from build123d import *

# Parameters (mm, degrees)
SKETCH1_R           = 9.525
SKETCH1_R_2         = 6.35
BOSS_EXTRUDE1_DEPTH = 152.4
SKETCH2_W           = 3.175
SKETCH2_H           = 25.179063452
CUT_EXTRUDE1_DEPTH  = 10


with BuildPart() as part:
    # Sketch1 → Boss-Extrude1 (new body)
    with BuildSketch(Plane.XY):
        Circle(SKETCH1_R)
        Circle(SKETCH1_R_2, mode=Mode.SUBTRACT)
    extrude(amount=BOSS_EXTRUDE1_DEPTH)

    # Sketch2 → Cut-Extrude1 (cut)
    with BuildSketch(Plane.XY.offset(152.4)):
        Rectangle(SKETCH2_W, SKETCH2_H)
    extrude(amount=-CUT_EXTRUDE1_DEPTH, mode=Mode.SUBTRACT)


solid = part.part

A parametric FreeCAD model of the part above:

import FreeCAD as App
import Part
import Sketcher
from FreeCAD import Vector
Q = App.Units.Quantity

doc = App.newDocument("Part")
body = doc.addObject("PartDesign::Body", "Body")

sketch1 = body.newObject("Sketcher::SketchObject", "Sketch")
sketch1.AttachmentSupport = (doc.getObject("XY_Plane"), [""])
sketch1.MapMode = "FlatFace"
sketch1.addGeometry(Part.Circle(Vector(0, 0, 0), Vector(0, 0, 1), 10), False)
sketch1.addGeometry(Part.Circle(Vector(0, 0, 0), Vector(0, 0, 1), 6), False)
sketch1.addConstraint(Sketcher.Constraint("Coincident", 0, 3, -1, 1))
sketch1.addConstraint(Sketcher.Constraint("Coincident", 1, 3, -1, 1))
sketch1.addConstraint(Sketcher.Constraint("Diameter", 1, Q("0.5 in")))
sketch1.addConstraint(Sketcher.Constraint("Diameter", 0, Q("0.75 in")))
pad1 = body.newObject("PartDesign::Pad", "Pad")
pad1.Profile = sketch1
pad1.Length = Q("6 in")

sketch2 = body.newObject("Sketcher::SketchObject", "Sketch001")
sketch2.AttachmentSupport = (doc.getObject("XY_Plane"), [""])
sketch2.MapMode = "FlatFace"
sketch2.AttachmentOffset = App.Placement(Vector(0, 0, 6 * 25.4), App.Rotation())
sketch2.addGeometry(Part.LineSegment(Vector(-1.6, 12.6, 0), Vector(-1.6, -12.6, 0)), False)
sketch2.addGeometry(Part.LineSegment(Vector(-1.6, -12.6, 0), Vector(1.6, -12.6, 0)), False)
sketch2.addGeometry(Part.LineSegment(Vector(1.6, -12.6, 0), Vector(1.6, 12.6, 0)), False)
sketch2.addGeometry(Part.LineSegment(Vector(1.6, 12.6, 0), Vector(-1.6, 12.6, 0)), False)
sketch2.addConstraint(Sketcher.Constraint("Coincident", 0, 2, 1, 1))
sketch2.addConstraint(Sketcher.Constraint("Coincident", 1, 2, 2, 1))
sketch2.addConstraint(Sketcher.Constraint("Coincident", 2, 2, 3, 1))
sketch2.addConstraint(Sketcher.Constraint("Coincident", 3, 2, 0, 1))
sketch2.addConstraint(Sketcher.Constraint("Vertical", 0))
sketch2.addConstraint(Sketcher.Constraint("Horizontal", 1))
sketch2.addConstraint(Sketcher.Constraint("Vertical", 2))
sketch2.addConstraint(Sketcher.Constraint("Horizontal", 3))
sketch2.addConstraint(Sketcher.Constraint("Symmetric", 0, 2, 2, 2, -1, 1))
sketch2.addConstraint(Sketcher.Constraint("DistanceX", 1, 1, 1, 2, Q("0.125 in")))
sketch2.addConstraint(Sketcher.Constraint("DistanceY", 0, 2, 0, 1, Q("25.179063 mm")))
pocket1 = body.newObject("PartDesign::Pocket", "Pocket")
pocket1.Profile = sketch2
pocket1.Length = 10

doc.recompute()
